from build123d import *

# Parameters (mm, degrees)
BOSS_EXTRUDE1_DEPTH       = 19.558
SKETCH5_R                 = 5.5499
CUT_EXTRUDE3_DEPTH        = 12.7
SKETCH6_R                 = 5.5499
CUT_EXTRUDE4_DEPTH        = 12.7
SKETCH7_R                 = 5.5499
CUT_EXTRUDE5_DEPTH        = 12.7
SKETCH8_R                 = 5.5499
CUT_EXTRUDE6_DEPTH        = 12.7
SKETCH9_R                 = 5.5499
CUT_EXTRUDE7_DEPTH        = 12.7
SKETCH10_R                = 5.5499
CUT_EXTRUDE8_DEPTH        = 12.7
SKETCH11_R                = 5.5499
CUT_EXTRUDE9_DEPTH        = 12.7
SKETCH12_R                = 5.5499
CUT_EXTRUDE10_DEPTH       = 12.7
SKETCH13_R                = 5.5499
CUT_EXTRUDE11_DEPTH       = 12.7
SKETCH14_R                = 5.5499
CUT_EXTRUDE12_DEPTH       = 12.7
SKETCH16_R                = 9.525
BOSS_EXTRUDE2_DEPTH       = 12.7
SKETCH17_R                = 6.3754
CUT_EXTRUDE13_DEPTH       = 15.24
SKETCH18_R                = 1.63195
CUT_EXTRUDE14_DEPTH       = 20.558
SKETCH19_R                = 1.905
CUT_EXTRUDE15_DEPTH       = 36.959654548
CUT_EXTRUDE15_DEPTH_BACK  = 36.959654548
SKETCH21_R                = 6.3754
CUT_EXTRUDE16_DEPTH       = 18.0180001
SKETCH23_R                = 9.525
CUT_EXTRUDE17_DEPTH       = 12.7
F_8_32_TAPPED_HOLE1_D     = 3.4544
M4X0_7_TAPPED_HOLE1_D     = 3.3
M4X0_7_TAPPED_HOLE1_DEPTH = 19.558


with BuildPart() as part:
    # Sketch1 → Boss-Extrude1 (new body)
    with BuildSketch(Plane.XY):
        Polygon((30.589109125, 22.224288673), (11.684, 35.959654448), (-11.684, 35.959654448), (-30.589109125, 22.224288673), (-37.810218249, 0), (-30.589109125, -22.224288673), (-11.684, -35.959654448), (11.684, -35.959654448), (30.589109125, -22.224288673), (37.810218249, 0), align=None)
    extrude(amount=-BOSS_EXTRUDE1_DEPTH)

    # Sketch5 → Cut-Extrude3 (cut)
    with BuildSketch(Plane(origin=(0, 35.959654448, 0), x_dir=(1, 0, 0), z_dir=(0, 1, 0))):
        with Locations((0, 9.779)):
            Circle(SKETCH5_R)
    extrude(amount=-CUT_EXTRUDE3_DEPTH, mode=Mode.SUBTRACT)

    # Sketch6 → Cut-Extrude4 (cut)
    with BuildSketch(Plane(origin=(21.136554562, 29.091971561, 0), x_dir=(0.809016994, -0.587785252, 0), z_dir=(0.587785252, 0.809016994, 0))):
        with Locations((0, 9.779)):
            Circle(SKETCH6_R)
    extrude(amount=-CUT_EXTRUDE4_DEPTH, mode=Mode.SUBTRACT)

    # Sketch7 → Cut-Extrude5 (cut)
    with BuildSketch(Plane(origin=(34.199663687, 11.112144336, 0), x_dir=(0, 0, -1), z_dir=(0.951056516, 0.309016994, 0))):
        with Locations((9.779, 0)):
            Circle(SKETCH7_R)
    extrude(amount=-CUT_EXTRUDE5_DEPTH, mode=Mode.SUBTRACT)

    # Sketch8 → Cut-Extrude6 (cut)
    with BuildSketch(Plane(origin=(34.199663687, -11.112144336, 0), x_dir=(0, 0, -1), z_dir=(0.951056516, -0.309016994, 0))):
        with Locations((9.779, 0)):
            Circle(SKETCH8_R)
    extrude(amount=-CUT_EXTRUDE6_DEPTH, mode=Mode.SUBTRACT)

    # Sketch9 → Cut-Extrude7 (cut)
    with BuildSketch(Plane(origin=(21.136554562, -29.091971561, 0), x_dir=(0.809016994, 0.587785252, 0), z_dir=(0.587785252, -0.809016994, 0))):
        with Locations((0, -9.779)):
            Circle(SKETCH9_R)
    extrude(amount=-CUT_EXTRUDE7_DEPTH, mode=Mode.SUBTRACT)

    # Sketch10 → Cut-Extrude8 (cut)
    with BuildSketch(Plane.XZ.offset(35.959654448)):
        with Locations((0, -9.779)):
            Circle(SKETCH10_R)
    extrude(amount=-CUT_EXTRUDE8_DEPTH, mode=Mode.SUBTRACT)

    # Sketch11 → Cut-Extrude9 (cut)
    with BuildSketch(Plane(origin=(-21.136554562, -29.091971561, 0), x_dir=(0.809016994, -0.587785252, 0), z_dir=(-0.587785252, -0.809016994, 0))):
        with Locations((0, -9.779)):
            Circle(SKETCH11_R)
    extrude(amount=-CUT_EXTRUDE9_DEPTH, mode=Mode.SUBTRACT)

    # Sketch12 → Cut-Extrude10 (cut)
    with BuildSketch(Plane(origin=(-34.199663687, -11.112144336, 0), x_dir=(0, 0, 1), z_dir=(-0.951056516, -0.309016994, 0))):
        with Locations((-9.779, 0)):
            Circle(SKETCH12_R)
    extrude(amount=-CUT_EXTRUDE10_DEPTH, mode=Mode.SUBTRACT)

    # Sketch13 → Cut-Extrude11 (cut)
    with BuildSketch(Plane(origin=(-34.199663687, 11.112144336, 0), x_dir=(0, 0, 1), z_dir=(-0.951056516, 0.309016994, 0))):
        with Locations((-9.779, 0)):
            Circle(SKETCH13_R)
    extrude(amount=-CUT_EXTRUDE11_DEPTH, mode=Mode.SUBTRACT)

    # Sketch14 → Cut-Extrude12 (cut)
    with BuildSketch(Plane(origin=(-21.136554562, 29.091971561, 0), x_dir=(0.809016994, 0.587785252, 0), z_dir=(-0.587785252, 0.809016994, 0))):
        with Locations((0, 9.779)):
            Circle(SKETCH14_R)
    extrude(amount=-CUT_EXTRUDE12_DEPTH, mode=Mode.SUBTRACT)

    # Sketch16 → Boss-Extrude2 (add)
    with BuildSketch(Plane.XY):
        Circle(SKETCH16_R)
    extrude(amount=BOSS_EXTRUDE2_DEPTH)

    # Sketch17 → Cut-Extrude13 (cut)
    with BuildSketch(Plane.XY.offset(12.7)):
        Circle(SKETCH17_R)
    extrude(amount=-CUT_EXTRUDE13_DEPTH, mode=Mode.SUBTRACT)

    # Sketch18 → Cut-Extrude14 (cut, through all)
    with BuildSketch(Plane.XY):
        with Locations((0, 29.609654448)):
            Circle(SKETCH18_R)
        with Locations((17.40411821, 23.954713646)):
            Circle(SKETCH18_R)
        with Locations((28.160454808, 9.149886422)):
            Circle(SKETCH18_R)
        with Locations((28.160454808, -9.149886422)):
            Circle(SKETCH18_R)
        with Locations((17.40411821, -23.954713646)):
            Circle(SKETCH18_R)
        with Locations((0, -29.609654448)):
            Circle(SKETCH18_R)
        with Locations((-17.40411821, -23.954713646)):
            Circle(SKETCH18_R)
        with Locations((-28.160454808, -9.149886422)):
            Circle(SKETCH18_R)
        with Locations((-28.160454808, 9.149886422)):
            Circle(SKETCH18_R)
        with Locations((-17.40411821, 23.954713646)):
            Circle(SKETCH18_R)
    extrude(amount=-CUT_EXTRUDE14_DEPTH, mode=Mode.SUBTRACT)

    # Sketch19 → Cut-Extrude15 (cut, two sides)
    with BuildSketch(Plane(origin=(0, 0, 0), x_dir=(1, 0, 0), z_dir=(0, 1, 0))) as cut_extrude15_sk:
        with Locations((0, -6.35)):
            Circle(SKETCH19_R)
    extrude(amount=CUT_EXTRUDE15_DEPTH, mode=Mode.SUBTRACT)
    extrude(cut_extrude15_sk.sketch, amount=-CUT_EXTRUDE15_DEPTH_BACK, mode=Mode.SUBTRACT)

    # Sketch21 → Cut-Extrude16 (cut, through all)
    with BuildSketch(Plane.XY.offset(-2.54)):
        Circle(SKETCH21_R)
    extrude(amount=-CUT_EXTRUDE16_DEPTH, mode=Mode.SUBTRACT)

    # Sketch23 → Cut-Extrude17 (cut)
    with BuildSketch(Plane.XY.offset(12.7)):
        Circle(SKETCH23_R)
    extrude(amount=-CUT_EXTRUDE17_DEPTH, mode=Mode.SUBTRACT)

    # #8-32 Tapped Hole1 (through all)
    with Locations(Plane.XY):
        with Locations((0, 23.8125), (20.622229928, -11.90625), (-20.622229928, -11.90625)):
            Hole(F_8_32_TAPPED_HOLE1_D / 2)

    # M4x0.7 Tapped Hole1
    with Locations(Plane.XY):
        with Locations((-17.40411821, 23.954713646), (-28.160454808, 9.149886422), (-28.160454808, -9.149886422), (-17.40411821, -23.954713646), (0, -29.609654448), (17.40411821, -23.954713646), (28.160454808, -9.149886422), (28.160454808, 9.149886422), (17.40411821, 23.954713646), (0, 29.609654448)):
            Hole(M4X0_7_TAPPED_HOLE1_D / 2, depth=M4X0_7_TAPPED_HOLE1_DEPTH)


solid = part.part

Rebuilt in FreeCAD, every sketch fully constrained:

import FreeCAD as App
import Part
import Sketcher
from FreeCAD import Vector
Q = App.Units.Quantity


def add_polygon(sketch, points):
    """Adds a closed chain of lines whose ends are joined by coincident constraints."""
    first, n = sketch.GeometryCount, len(points)
    for a, b in zip(points, points[1:] + points[:1]):
        sketch.addGeometry(Part.LineSegment(App.Vector(*a, 0), App.Vector(*b, 0)), False)
    for i in range(n):
        sketch.addConstraint(Sketcher.Constraint("Coincident", first + i, 2, first + (i + 1) % n, 1))

doc = App.newDocument("Part")
body = doc.addObject("PartDesign::Body", "Body")

# Sketch on XY plane
sketch1 = body.newObject("Sketcher::SketchObject", "Sketch")
sketch1.AttachmentSupport = (doc.getObject("XY_Plane"), [""])
sketch1.MapMode = "FlatFace"
add_polygon(sketch1, [(31, 22), (12, 36), (-12, 36), (-31, 22), (-38, 0), (-31, -22), (-12, -36), (12, -36), (31, -22), (38, 0)])  # lines 0-9
sketch1.addConstraint([
    Sketcher.Constraint("Horizontal", 1),
    Sketcher.Constraint("Horizontal", 6),
    Sketcher.Constraint("Symmetric", 0, 2, 5, 2, -1, 1),
    Sketcher.Constraint("Symmetric", 2, 2, 7, 2, -1, 1),
    Sketcher.Constraint("Symmetric", 3, 2, 8, 2, -1, 1),
    Sketcher.Constraint("Symmetric", 4, 2, 9, 2, -1, 1),
    Sketcher.Constraint("Symmetric", 4, 2, 7, 2, -2),
    Sketcher.Constraint("PointOnObject", 3, 2, -1),
    Sketcher.Constraint("Parallel", 2, 7),
    Sketcher.Constraint("Vertical", 1, 2, 5, 2),
    Sketcher.Constraint("Equal", 2, 3),
    Sketcher.Constraint("Angle", 0, Q("144 deg")),
    Sketcher.Constraint("Angle", 3, Q("-108 deg")),
    Sketcher.Constraint("DistanceX", 1, 2, 1, 1, Q("0.92 in")),
    Sketcher.Constraint("Distance", 0, Q("0.92 in")),
])
pad1 = body.newObject("PartDesign::Pad", "Pad")
pad1.Profile = sketch1
pad1.Length = Q("0.77 in")
pad1.Reversed = True

# Sketch on XZ plane
sketch2 = body.newObject("Sketcher::SketchObject", "Sketch001")
sketch2.AttachmentSupport = (doc.getObject("XZ_Plane"), [""])
sketch2.MapMode = "FlatFace"
sketch2.AttachmentOffset = App.Placement(Vector(0, 0, -35.959654), App.Rotation())
sketch2.addGeometry(Part.Circle(Vector(0, -10, 0), Vector(0, 0, 1), 6), False)
sketch2.addConstraint([
    Sketcher.Constraint("PointOnObject", 0, 3, -2),
    Sketcher.Constraint("Diameter", 0, Q("0.437 in")),
    Sketcher.Constraint("DistanceY", 0, 3, -1, 1, Q("0.385 in")),
])
pocket1 = body.newObject("PartDesign::Pocket", "Pocket")
pocket1.Profile = sketch2
pocket1.Length = Q("0.5 in")
pocket1.Reversed = True

# Sketch on an angled plane
sketch3 = body.newObject("Sketcher::SketchObject", "Sketch002")
sketch3.Placement = App.Placement(Vector(21.136555, 29.091972, 0), App.Rotation(Vector(0.809016994, -0.587785252, 0), Vector(0, 0, -0.999999999), Vector(0.587785252, 0.809016994, 0), "ZXY"))
sketch3.addGeometry(Part.Circle(Vector(0, 10, 0), Vector(0, 0, 1), 6), False)
sketch3.addConstraint([
    Sketcher.Constraint("PointOnObject", 0, 3, -2),
    Sketcher.Constraint("Diameter", 0, Q("0.437 in")),
    Sketcher.Constraint("DistanceY", -1, 1, 0, 3, Q("0.385 in")),
])
pocket2 = body.newObject("PartDesign::Pocket", "Pocket001")
pocket2.Profile = sketch3
pocket2.Length = Q("0.5 in")

# Sketch on an angled plane
sketch4 = body.newObject("Sketcher::SketchObject", "Sketch003")
sketch4.Placement = App.Placement(Vector(34.199664, 11.112144, 0), App.Rotation(Vector(0, 0, -1), Vector(-0.309016994, 0.951056516, 0), Vector(0.951056516, 0.309016994, 0), "ZXY"))
sketch4.addGeometry(Part.Circle(Vector(10, 0, 0), Vector(0, 0, 1), 6), False)
sketch4.addConstraint([
    Sketcher.Constraint("PointOnObject", 0, 3, -1),
    Sketcher.Constraint("Diameter", 0, Q("0.437 in")),
    Sketcher.Constraint("DistanceX", -1, 1, 0, 3, Q("0.385 in")),
])
pocket3 = body.newObject("PartDesign::Pocket", "Pocket002")
pocket3.Profile = sketch4
pocket3.Length = Q("0.5 in")

# Sketch on an angled plane
sketch5 = body.newObject("Sketcher::SketchObject", "Sketch004")
sketch5.Placement = App.Placement(Vector(34.199664, -11.112144, 0), App.Rotation(Vector(0, 0, -1), Vector(0.309016994, 0.951056516, 0), Vector(0.951056516, -0.309016994, 0), "ZXY"))
sketch5.addGeometry(Part.Circle(Vector(10, 0, 0), Vector(0, 0, 1), 6), False)
sketch5.addConstraint([
    Sketcher.Constraint("PointOnObject", 0, 3, -1),
    Sketcher.Constraint("Diameter", 0, Q("0.437 in")),
    Sketcher.Constraint("DistanceX", -1, 1, 0, 3, Q("0.385 in")),
])
pocket4 = body.newObject("PartDesign::Pocket", "Pocket003")
pocket4.Profile = sketch5
pocket4.Length = Q("0.5 in")

# Sketch on an angled plane
sketch6 = body.newObject("Sketcher::SketchObject", "Sketch005")
sketch6.Placement = App.Placement(Vector(21.136555, -29.091972, 0), App.Rotation(Vector(0.809016994, 0.587785252, 0), Vector(0, 0, 0.999999999), Vector(0.587785252, -0.809016994, 0), "ZXY"))
sketch6.addGeometry(Part.Circle(Vector(0, -10, 0), Vector(0, 0, 1), 6), False)
sketch6.addConstraint([
    Sketcher.Constraint("PointOnObject", 0, 3, -2),
    Sketcher.Constraint("Diameter", 0, Q("0.437 in")),
    Sketcher.Constraint("DistanceY", 0, 3, -1, 1, Q("0.385 in")),
])
pocket5 = body.newObject("PartDesign::Pocket", "Pocket004")
pocket5.Profile = sketch6
pocket5.Length = Q("0.5 in")

# Sketch on XZ plane
sketch7 = body.newObject("Sketcher::SketchObject", "Sketch006")
sketch7.AttachmentSupport = (doc.getObject("XZ_Plane"), [""])
sketch7.MapMode = "FlatFace"
sketch7.AttachmentOffset = App.Placement(Vector(0, 0, 35.959654), App.Rotation())
sketch7.addGeometry(Part.Circle(Vector(0, -10, 0), Vector(0, 0, 1), 6), False)
sketch7.addConstraint([
    Sketcher.Constraint("PointOnObject", 0, 3, -2),
    Sketcher.Constraint("Diameter", 0, Q("0.437 in")),
    Sketcher.Constraint("DistanceY", 0, 3, -1, 1, Q("0.385 in")),
])
pocket6 = body.newObject("PartDesign::Pocket", "Pocket005")
pocket6.Profile = sketch7
pocket6.Length = Q("0.5 in")

# Sketch on an angled plane
sketch8 = body.newObject("Sketcher::SketchObject", "Sketch007")
sketch8.Placement = App.Placement(Vector(-21.136555, -29.091972, 0), App.Rotation(Vector(0.809016994, -0.587785252, 0), Vector(0, 0, 0.999999999), Vector(-0.587785252, -0.809016994, 0), "ZXY"))
sketch8.addGeometry(Part.Circle(Vector(0, -10, 0), Vector(0, 0, 1), 6), False)
sketch8.addConstraint([
    Sketcher.Constraint("PointOnObject", 0, 3, -2),
    Sketcher.Constraint("Diameter", 0, Q("0.437 in")),
    Sketcher.Constraint("DistanceY", 0, 3, -1, 1, Q("0.385 in")),
])
pocket7 = body.newObject("PartDesign::Pocket", "Pocket006")
pocket7.Profile = sketch8
pocket7.Length = Q("0.5 in")

# Sketch on an angled plane
sketch9 = body.newObject("Sketcher::SketchObject", "Sketch008")
sketch9.Placement = App.Placement(Vector(-34.199664, -11.112144, 0), App.Rotation(Vector(0, 0, 1), Vector(-0.309016994, 0.951056516, 0), Vector(-0.951056516, -0.309016994, 0), "ZXY"))
sketch9.addGeometry(Part.Circle(Vector(-10, 0, 0), Vector(0, 0, 1), 6), False)
sketch9.addConstraint([
    Sketcher.Constraint("PointOnObject", 0, 3, -1),
    Sketcher.Constraint("Diameter", 0, Q("0.437 in")),
    Sketcher.Constraint("DistanceX", 0, 3, -1, 1, Q("0.385 in")),
])
pocket8 = body.newObject("PartDesign::Pocket", "Pocket007")
pocket8.Profile = sketch9
pocket8.Length = Q("0.5 in")

# Sketch on an angled plane
sketch10 = body.newObject("Sketcher::SketchObject", "Sketch009")
sketch10.Placement = App.Placement(Vector(-34.199664, 11.112144, 0), App.Rotation(Vector(0, 0, 1), Vector(0.309016994, 0.951056516, 0), Vector(-0.951056516, 0.309016994, 0), "ZXY"))
sketch10.addGeometry(Part.Circle(Vector(-10, 0, 0), Vector(0, 0, 1), 6), False)
sketch10.addConstraint([
    Sketcher.Constraint("PointOnObject", 0, 3, -1),
    Sketcher.Constraint("Diameter", 0, Q("0.437 in")),
    Sketcher.Constraint("DistanceX", 0, 3, -1, 1, Q("0.385 in")),
])
pocket9 = body.newObject("PartDesign::Pocket", "Pocket008")
pocket9.Profile = sketch10
pocket9.Length = Q("0.5 in")

# Sketch on an angled plane
sketch11 = body.newObject("Sketcher::SketchObject", "Sketch010")
sketch11.Placement = App.Placement(Vector(-21.136555, 29.091972, 0), App.Rotation(Vector(0.809016994, 0.587785252, 0), Vector(0, 0, -0.999999999), Vector(-0.587785252, 0.809016994, 0), "ZXY"))
sketch11.addGeometry(Part.Circle(Vector(0, 10, 0), Vector(0, 0, 1), 6), False)
sketch11.addConstraint([
    Sketcher.Constraint("PointOnObject", 0, 3, -2),
    Sketcher.Constraint("Diameter", 0, Q("0.437 in")),
    Sketcher.Constraint("DistanceY", -1, 1, 0, 3, Q("0.385 in")),
])
pocket10 = body.newObject("PartDesign::Pocket", "Pocket009")
pocket10.Profile = sketch11
pocket10.Length = Q("0.5 in")

# Sketch on XY plane
sketch12 = body.newObject("Sketcher::SketchObject", "Sketch011")
sketch12.AttachmentSupport = (doc.getObject("XY_Plane"), [""])
sketch12.MapMode = "FlatFace"
sketch12.addGeometry(Part.Circle(Vector(0, 0, 0), Vector(0, 0, 1), 10), False)
sketch12.addConstraint([
    Sketcher.Constraint("Coincident", 0, 3, -1, 1),
    Sketcher.Constraint("Diameter", 0, Q("0.75 in")),
])
pad2 = body.newObject("PartDesign::Pad", "Pad001")
pad2.Profile = sketch12
pad2.Length = Q("0.5 in")

# Sketch on XY plane
sketch13 = body.newObject("Sketcher::SketchObject", "Sketch012")
sketch13.AttachmentSupport = (doc.getObject("XY_Plane"), [""])
sketch13.MapMode = "FlatFace"
sketch13.AttachmentOffset = App.Placement(Vector(0, 0, 0.5 * 25.4), App.Rotation())
sketch13.addGeometry(Part.Circle(Vector(0, 0, 0), Vector(0, 0, 1), 6), False)
sketch13.addConstraint([
    Sketcher.Constraint("Coincident", 0, 3, -1, 1),
    Sketcher.Constraint("Diameter", 0, Q("0.502 in")),
])
pocket11 = body.newObject("PartDesign::Pocket", "Pocket010")
pocket11.Profile = sketch13
pocket11.Length = Q("0.6 in")

# Sketch on XY plane
sketch14 = body.newObject("Sketcher::SketchObject", "Sketch013")
sketch14.AttachmentSupport = (doc.getObject("XY_Plane"), [""])
sketch14.MapMode = "FlatFace"
sketch14.addGeometry([
    Part.Circle(Vector(0, 29.6, 0), Vector(0, 0, 1), 1.6),  # 0
    Part.Circle(Vector(17.4, 24, 0), Vector(0, 0, 1), 1.6),  # 1
    Part.Circle(Vector(28.2, 9.1, 0), Vector(0, 0, 1), 1.6),  # 2
    Part.Circle(Vector(28.2, -9.1, 0), Vector(0, 0, 1), 1.6),  # 3
    Part.Circle(Vector(17.4, -24, 0), Vector(0, 0, 1), 1.6),  # 4
    Part.Circle(Vector(0, -29.6, 0), Vector(0, 0, 1), 1.6),  # 5
    Part.Circle(Vector(-17.4, -24, 0), Vector(0, 0, 1), 1.6),  # 6
    Part.Circle(Vector(-28.2, -9.1, 0), Vector(0, 0, 1), 1.6),  # 7
    Part.Circle(Vector(-28.2, 9.1, 0), Vector(0, 0, 1), 1.6),  # 8
    Part.Circle(Vector(-17.4, 24, 0), Vector(0, 0, 1), 1.6),  # 9
], False)
sketch14.addConstraint([
    Sketcher.Constraint("Equal", 0, 1),
    Sketcher.Constraint("Equal", 1, 2),
    Sketcher.Constraint("Equal", 2, 3),
    Sketcher.Constraint("Equal", 3, 4),
    Sketcher.Constraint("Equal", 4, 5),
    Sketcher.Constraint("Equal", 5, 6),
    Sketcher.Constraint("Equal", 6, 7),
    Sketcher.Constraint("Equal", 7, 8),
    Sketcher.Constraint("Equal", 8, 9),
    Sketcher.Constraint("Symmetric", 0, 3, 5, 3, -1, 1),
    Sketcher.Constraint("Symmetric", 1, 3, 6, 3, -1, 1),
    Sketcher.Constraint("Symmetric", 2, 3, 7, 3, -1, 1),
    Sketcher.Constraint("Symmetric", 3, 3, 8, 3, -1, 1),
    Sketcher.Constraint("Symmetric", 4, 3, 9, 3, -1, 1),
    Sketcher.Constraint("Symmetric", 4, 3, 6, 3, -2),
    Sketcher.Constraint("Symmetric", 3, 3, 7, 3, -2),
    Sketcher.Constraint("PointOnObject", 0, 3, -2),
    Sketcher.Constraint("Diameter", 0, Q("0.1285 in")),
    Sketcher.Constraint("DistanceY", 3, 3, 1, 3, Q("33.1046 mm")),
    Sketcher.Constraint("DistanceX", -1, 1, 1, 3, Q("17.404118 mm")),
    Sketcher.Constraint("DistanceY", 1, 3, 0, 3, Q("5.654941 mm")),
    Sketcher.Constraint("DistanceY", 2, 3, 0, 3, Q("20.459768 mm")),
    Sketcher.Constraint("DistanceX", 7, 3, 3, 3, Q("56.32091 mm")),
])
pocket12 = body.newObject("PartDesign::Pocket", "Pocket011")
pocket12.Profile = sketch14
pocket12.Type = "ThroughAll"

# Sketch on XZ plane
sketch15 = body.newObject("Sketcher::SketchObject", "Sketch014")
sketch15.AttachmentSupport = (doc.getObject("XZ_Plane"), [""])
sketch15.MapMode = "FlatFace"
sketch15.addGeometry(Part.Circle(Vector(0, 6.3, 0), Vector(0, 0, 1), 1.9), False)
sketch15.addConstraint([
    Sketcher.Constraint("PointOnObject", 0, 3, -2),
    Sketcher.Constraint("Diameter", 0, Q("0.15 in")),
    Sketcher.Constraint("DistanceY", -1, 1, 0, 3, Q("0.25 in")),
])
pocket13 = body.newObject("PartDesign::Pocket", "Pocket012")
pocket13.Profile = sketch15
pocket13.Type = "ThroughAll"
pocket13.Midplane = True

# Sketch on XY plane
sketch16 = body.newObject("Sketcher::SketchObject", "Sketch015")
sketch16.AttachmentSupport = (doc.getObject("XY_Plane"), [""])
sketch16.MapMode = "FlatFace"
sketch16.AttachmentOffset = App.Placement(Vector(0, 0, -0.1 * 25.4), App.Rotation())
sketch16.addGeometry(Part.Circle(Vector(0, 0, 0), Vector(0, 0, 1), 6), False)
sketch16.addConstraint([
    Sketcher.Constraint("Coincident", 0, 3, -1, 1),
    Sketcher.Constraint("Diameter", 0, Q("0.502 in")),
])
pocket14 = body.newObject("PartDesign::Pocket", "Pocket013")
pocket14.Profile = sketch16
pocket14.Type = "ThroughAll"

# Sketch on XY plane
sketch17 = body.newObject("Sketcher::SketchObject", "Sketch016")
sketch17.AttachmentSupport = (doc.getObject("XY_Plane"), [""])
sketch17.MapMode = "FlatFace"
sketch17.AttachmentOffset = App.Placement(Vector(0, 0, 0.5 * 25.4), App.Rotation())
sketch17.addGeometry(Part.Circle(Vector(0, 0, 0), Vector(0, 0, 1), 10), False)
sketch17.addConstraint([
    Sketcher.Constraint("Coincident", 0, 3, -1, 1),
    Sketcher.Constraint("Diameter", 0, Q("0.75 in")),
])
pocket15 = body.newObject("PartDesign::Pocket", "Pocket014")
pocket15.Profile = sketch17
pocket15.Length = Q("0.5 in")

# Sketch on XY plane
sketch18 = body.newObject("Sketcher::SketchObject", "Sketch017")
sketch18.AttachmentSupport = (doc.getObject("XY_Plane"), [""])
sketch18.MapMode = "FlatFace"
sketch18.addGeometry([
    Part.Circle(Vector(0, 23.8, 0), Vector(0, 0, 1), 1.7),
    Part.Circle(Vector(20.6, -11.9, 0), Vector(0, 0, 1), 1.7),
    Part.Circle(Vector(-20.6, -11.9, 0), Vector(0, 0, 1), 1.7),
], False)
sketch18.addConstraint([
    Sketcher.Constraint("Equal", 0, 1),
    Sketcher.Constraint("Equal", 1, 2),
    Sketcher.Constraint("Symmetric", 1, 3, 2, 3, -2),
    Sketcher.Constraint("PointOnObject", 0, 3, -2),
    Sketcher.Constraint("Diameter", 0, Q("0.136 in")),
    Sketcher.Constraint("DistanceY", -1, 1, 0, 3, Q("0.9375 in")),
    Sketcher.Constraint("DistanceY", 1, 3, -1, 1, Q("0.46875 in")),
    Sketcher.Constraint("DistanceX", -1, 1, 1, 3, Q("20.62223 mm")),
])
doc.recompute()
hole = body.newObject("PartDesign::Hole", "Hole")
hole.Profile = sketch18
hole.ThreadType = "None"
hole.Diameter = Q("0.136 in")
hole.DepthType = "ThroughAll"

# Sketch on XY plane
sketch19 = body.newObject("Sketcher::SketchObject", "Sketch018")
sketch19.AttachmentSupport = (doc.getObject("XY_Plane"), [""])
sketch19.MapMode = "FlatFace"
sketch19.addGeometry([
    Part.Circle(Vector(-17.4, 24, 0), Vector(0, 0, 1), 1.6),  # 0
    Part.Circle(Vector(-28.2, 9.1, 0), Vector(0, 0, 1), 1.6),  # 1
    Part.Circle(Vector(-28.2, -9.1, 0), Vector(0, 0, 1), 1.6),  # 2
    Part.Circle(Vector(-17.4, -24, 0), Vector(0, 0, 1), 1.6),  # 3
    Part.Circle(Vector(0, -29.6, 0), Vector(0, 0, 1), 1.6),  # 4
    Part.Circle(Vector(17.4, -24, 0), Vector(0, 0, 1), 1.6),  # 5
    Part.Circle(Vector(28.2, -9.1, 0), Vector(0, 0, 1), 1.6),  # 6
    Part.Circle(Vector(28.2, 9.1, 0), Vector(0, 0, 1), 1.6),  # 7
    Part.Circle(Vector(17.4, 24, 0), Vector(0, 0, 1), 1.6),  # 8
    Part.Circle(Vector(0, 29.6, 0), Vector(0, 0, 1), 1.6),  # 9
], False)
sketch19.addConstraint([
    Sketcher.Constraint("Equal", 0, 1),
    Sketcher.Constraint("Equal", 1, 2),
    Sketcher.Constraint("Equal", 2, 3),
    Sketcher.Constraint("Equal", 3, 4),
    Sketcher.Constraint("Equal", 4, 5),
    Sketcher.Constraint("Equal", 5, 6),
    Sketcher.Constraint("Equal", 6, 7),
    Sketcher.Constraint("Equal", 7, 8),
    Sketcher.Constraint("Equal", 8, 9),
    Sketcher.Constraint("Symmetric", 0, 3, 5, 3, -1, 1),
    Sketcher.Constraint("Symmetric", 1, 3, 6, 3, -1, 1),
    Sketcher.Constraint("Symmetric", 2, 3, 7, 3, -1, 1),
    Sketcher.Constraint("Symmetric", 3, 3, 8, 3, -1, 1),
    Sketcher.Constraint("Symmetric", 4, 3, 9, 3, -1, 1),
    Sketcher.Constraint("Symmetric", 3, 3, 5, 3, -2),
    Sketcher.Constraint("Symmetric", 2, 3, 6, 3, -2),
    Sketcher.Constraint("PointOnObject", 4, 3, -2),
    Sketcher.Constraint("Diameter", 0, Q("3.3 mm")),
    Sketcher.Constraint("DistanceY", 2, 3, 0, 3, Q("33.1046 mm")),
    Sketcher.Constraint("DistanceX", 0, 3, -1, 1, Q("17.404118 mm")),
    Sketcher.Constraint("DistanceY", 4, 3, 3, 3, Q("5.654941 mm")),
    Sketcher.Constraint("DistanceY", 4, 3, 2, 3, Q("20.459768 mm")),
    Sketcher.Constraint("DistanceX", 2, 3, 6, 3, Q("56.32091 mm")),
])
doc.recompute()
hole2 = body.newObject("PartDesign::Hole", "Hole001")
hole2.Profile = sketch19
hole2.ThreadType = "None"
hole2.Diameter = 3.3
hole2.DepthType = "Dimension"
hole2.Depth = Q("0.77 in")
hole2.DrillPoint = "Flat"

doc.recompute()
